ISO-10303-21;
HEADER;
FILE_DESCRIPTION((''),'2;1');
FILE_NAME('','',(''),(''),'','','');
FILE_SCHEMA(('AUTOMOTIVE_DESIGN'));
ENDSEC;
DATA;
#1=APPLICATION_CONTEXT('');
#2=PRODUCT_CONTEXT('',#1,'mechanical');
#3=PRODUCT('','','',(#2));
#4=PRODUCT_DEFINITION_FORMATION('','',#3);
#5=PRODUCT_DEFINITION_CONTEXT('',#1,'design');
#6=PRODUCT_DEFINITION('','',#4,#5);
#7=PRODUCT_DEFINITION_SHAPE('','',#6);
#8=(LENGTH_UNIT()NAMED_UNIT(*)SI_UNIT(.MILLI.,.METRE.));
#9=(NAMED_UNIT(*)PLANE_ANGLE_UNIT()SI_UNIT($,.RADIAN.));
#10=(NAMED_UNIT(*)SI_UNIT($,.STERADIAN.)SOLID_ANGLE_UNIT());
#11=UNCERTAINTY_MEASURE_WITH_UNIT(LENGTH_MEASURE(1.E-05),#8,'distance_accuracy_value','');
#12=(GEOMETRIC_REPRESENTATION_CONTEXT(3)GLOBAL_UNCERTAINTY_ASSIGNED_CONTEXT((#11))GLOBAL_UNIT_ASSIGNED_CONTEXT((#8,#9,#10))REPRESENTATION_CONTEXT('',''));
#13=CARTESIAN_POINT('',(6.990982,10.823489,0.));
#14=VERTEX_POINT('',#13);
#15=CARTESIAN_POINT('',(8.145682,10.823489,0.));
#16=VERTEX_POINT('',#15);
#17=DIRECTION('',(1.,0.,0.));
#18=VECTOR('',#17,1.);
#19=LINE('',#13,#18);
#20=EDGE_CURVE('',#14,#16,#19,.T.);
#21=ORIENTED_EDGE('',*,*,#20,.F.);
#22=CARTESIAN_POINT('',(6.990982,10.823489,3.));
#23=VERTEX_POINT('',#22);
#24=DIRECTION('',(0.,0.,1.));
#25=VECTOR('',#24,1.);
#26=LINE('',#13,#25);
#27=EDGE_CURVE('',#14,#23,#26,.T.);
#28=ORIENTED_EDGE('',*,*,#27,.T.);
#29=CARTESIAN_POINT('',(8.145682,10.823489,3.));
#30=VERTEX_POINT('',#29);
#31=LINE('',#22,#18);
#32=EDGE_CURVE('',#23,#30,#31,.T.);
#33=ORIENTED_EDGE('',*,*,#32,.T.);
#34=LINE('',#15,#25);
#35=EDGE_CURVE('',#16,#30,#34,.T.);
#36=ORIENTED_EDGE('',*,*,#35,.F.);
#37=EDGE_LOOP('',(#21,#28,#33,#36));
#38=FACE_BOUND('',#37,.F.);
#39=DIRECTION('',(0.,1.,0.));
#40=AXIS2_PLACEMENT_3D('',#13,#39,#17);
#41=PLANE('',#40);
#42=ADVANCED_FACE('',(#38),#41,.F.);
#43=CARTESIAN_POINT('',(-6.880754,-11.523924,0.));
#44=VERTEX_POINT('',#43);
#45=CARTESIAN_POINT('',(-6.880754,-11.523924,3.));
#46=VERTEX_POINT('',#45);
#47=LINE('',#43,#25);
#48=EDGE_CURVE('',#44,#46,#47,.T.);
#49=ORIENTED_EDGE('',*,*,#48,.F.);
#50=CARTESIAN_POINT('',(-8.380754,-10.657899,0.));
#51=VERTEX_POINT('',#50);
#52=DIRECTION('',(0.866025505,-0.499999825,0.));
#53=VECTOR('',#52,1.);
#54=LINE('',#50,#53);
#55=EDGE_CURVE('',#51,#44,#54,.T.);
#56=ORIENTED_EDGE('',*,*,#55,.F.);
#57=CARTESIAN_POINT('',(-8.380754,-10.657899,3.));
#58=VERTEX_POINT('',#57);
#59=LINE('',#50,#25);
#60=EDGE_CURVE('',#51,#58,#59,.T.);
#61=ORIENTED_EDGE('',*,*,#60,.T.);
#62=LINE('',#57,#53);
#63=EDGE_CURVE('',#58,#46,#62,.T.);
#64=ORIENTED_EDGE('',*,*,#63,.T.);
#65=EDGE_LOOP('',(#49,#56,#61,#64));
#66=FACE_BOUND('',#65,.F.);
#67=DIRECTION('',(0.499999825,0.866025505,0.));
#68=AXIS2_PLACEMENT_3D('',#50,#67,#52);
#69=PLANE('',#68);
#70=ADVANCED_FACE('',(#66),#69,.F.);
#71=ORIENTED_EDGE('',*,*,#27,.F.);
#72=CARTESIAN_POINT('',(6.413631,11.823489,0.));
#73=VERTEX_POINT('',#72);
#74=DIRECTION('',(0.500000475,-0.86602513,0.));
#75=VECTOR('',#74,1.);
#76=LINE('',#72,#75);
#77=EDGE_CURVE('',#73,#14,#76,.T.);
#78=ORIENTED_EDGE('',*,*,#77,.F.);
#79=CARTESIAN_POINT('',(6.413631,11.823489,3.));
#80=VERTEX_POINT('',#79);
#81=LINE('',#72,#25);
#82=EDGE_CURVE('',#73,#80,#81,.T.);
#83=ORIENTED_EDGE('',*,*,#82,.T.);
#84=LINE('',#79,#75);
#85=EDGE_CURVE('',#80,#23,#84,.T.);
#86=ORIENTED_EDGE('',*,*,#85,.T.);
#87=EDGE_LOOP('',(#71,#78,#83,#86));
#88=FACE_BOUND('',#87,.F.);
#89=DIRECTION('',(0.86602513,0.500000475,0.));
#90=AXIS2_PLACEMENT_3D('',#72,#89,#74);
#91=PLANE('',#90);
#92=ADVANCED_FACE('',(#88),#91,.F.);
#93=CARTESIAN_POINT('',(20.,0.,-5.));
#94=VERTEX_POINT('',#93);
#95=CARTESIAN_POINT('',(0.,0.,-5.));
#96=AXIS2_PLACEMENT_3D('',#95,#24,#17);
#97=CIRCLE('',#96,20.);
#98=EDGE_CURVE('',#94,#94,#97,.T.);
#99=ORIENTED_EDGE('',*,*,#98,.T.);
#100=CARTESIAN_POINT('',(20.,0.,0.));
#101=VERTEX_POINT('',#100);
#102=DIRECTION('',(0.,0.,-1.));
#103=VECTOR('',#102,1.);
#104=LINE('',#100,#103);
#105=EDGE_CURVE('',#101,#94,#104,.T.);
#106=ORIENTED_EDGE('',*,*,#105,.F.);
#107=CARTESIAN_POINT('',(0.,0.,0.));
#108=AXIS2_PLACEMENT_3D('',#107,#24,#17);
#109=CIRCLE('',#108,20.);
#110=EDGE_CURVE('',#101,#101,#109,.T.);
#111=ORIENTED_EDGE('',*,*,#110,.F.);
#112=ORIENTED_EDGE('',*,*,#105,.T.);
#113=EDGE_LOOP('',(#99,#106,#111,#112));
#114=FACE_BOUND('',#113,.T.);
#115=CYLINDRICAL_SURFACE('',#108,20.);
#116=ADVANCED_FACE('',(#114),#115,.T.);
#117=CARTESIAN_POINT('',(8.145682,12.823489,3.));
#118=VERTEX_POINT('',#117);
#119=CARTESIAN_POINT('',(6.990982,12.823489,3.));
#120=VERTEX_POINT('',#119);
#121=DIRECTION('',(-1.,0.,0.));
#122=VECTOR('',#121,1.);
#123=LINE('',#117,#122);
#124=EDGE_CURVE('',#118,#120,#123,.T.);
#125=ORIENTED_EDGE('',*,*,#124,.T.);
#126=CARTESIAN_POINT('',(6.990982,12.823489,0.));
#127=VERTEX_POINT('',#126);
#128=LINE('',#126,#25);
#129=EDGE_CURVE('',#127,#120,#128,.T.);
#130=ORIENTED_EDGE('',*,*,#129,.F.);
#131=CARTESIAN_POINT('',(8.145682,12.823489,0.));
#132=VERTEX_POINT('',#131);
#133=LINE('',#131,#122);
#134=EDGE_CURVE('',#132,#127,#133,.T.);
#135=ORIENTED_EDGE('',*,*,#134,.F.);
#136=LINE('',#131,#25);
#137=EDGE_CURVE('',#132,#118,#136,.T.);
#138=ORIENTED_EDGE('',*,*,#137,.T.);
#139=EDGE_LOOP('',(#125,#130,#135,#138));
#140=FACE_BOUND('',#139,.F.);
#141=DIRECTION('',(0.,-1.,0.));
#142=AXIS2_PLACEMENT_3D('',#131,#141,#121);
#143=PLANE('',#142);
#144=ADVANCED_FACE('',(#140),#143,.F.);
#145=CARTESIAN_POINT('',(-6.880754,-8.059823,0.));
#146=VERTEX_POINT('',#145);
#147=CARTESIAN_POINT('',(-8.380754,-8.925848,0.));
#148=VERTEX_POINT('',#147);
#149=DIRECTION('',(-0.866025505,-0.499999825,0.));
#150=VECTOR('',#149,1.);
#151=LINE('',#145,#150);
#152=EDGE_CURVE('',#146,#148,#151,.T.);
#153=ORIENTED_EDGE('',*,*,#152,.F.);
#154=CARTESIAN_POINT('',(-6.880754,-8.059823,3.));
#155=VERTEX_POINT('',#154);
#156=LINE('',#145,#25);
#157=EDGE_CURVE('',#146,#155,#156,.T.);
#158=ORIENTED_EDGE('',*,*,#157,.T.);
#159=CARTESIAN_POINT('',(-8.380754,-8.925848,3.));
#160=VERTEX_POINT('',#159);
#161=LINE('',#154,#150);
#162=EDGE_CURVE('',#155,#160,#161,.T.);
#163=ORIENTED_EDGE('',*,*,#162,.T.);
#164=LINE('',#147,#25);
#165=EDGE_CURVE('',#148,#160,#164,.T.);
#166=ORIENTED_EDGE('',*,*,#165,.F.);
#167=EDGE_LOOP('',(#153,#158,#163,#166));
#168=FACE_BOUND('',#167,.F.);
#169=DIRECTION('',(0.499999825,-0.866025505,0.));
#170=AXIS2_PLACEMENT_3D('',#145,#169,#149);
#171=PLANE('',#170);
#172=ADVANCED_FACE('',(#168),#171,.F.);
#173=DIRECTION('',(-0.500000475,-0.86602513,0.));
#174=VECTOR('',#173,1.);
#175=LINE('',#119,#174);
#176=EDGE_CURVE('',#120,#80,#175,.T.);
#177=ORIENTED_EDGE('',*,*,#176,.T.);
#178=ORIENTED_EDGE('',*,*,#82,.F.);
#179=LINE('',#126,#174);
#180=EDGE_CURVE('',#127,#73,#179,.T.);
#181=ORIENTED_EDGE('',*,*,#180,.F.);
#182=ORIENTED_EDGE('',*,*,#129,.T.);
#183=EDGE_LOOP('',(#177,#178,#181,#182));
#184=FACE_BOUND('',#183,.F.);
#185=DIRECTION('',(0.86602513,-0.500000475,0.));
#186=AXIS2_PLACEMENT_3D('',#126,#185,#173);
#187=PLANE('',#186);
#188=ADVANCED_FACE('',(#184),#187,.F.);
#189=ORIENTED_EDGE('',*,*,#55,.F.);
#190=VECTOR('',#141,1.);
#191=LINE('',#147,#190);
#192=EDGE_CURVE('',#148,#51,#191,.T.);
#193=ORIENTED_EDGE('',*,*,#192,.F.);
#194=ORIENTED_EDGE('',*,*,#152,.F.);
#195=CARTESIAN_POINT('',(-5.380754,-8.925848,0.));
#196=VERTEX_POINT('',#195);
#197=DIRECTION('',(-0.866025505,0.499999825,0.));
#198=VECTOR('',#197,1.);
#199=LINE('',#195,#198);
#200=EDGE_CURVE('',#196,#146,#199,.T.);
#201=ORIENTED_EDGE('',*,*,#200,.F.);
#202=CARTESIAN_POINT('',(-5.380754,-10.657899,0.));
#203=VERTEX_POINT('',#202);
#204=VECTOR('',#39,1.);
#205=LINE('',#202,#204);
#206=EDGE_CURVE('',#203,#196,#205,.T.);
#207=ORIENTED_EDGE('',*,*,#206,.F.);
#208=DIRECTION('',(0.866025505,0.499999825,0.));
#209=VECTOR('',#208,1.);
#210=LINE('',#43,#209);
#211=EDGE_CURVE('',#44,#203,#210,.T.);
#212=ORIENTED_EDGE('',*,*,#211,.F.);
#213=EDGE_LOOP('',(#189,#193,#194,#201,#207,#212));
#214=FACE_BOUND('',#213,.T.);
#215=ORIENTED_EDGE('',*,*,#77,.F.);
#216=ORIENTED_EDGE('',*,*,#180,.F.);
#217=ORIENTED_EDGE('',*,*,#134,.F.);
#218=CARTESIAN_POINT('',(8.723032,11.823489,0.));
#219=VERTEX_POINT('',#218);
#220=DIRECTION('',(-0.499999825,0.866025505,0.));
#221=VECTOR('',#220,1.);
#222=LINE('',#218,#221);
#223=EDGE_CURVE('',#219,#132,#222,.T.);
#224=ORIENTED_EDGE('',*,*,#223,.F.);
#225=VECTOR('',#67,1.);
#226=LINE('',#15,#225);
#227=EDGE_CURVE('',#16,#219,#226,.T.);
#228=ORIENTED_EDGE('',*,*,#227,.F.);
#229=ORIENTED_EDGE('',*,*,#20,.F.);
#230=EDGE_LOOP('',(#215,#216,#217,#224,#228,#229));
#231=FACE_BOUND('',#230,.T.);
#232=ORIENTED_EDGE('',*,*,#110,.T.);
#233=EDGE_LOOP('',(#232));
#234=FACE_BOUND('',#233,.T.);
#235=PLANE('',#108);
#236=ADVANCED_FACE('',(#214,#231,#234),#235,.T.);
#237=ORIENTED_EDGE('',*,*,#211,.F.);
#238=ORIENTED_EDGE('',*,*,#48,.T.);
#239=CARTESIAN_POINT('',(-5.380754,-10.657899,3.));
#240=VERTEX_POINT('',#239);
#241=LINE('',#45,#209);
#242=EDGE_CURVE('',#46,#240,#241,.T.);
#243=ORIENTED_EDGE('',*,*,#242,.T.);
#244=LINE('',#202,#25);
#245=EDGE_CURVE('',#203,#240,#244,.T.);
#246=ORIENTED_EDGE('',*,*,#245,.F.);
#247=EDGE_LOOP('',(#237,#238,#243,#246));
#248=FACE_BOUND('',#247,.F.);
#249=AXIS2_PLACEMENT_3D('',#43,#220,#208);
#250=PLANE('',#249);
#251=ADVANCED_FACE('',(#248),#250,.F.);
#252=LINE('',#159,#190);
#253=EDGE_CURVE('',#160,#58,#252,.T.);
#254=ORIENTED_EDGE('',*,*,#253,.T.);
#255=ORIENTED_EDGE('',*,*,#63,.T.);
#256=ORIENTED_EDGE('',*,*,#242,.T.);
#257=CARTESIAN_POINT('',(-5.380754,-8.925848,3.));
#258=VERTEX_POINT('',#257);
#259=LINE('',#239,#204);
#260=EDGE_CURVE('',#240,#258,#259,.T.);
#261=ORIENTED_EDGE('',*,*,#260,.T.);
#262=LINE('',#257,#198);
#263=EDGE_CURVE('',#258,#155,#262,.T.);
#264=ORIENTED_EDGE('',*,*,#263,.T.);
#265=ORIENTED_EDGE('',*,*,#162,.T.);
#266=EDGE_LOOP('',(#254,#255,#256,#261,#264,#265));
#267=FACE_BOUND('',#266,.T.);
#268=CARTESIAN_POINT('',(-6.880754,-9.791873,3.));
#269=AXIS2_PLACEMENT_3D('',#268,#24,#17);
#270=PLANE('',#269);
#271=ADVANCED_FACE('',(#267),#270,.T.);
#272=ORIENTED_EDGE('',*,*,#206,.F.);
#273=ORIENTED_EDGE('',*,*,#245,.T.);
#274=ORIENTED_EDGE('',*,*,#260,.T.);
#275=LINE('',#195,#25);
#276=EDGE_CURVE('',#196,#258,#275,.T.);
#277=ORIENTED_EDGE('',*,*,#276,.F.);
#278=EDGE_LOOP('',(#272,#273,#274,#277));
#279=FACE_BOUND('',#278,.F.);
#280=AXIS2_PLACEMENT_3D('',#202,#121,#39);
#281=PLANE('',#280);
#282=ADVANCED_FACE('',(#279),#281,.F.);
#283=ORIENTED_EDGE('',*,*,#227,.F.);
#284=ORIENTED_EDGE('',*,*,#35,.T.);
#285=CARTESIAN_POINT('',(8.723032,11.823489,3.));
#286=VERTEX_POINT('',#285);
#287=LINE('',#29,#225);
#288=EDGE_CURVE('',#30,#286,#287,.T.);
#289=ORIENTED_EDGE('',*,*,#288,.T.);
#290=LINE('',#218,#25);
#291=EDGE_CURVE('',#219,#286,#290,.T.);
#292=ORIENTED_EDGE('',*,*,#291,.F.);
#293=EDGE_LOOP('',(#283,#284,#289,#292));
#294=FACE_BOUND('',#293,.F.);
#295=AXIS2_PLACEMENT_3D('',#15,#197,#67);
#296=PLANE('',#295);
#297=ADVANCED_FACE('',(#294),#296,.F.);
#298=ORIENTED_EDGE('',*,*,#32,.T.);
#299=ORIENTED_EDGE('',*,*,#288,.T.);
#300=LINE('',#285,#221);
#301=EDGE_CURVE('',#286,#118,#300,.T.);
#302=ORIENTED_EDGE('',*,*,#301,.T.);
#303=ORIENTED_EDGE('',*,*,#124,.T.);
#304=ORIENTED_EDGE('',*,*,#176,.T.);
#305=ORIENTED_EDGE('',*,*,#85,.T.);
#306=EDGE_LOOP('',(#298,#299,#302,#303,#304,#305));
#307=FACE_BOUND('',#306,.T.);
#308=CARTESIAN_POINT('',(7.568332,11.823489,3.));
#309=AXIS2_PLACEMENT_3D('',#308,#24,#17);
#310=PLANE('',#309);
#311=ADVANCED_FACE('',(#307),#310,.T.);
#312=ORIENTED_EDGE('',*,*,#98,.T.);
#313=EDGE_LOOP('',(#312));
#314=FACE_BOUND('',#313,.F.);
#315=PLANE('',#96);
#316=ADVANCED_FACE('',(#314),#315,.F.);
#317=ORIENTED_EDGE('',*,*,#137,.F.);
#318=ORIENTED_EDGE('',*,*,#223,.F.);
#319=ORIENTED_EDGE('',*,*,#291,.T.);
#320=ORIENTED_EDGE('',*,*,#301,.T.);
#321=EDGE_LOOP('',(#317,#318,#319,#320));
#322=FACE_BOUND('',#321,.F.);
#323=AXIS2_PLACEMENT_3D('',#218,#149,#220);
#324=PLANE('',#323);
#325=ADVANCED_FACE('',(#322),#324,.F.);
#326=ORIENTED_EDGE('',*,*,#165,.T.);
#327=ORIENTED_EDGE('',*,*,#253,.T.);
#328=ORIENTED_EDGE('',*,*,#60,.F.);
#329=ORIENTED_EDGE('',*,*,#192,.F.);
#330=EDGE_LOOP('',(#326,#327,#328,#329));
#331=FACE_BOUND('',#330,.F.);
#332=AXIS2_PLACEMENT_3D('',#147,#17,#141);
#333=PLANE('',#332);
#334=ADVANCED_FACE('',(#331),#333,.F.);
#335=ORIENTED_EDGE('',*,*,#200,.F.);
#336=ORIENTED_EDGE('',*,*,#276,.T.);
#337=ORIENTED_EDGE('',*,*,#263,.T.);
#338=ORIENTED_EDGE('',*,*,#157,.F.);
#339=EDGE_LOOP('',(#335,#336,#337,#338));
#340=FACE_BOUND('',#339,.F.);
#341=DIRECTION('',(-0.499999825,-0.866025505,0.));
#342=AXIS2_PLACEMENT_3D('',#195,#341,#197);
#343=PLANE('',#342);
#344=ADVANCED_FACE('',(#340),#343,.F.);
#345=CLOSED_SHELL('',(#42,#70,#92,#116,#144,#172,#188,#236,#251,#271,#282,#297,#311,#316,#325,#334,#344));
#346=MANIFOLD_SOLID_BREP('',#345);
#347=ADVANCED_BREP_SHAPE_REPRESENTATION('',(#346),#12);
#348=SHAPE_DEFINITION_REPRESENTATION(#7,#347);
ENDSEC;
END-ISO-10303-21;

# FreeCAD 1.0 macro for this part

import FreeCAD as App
import Part
import Sketcher
Q = App.Units.Quantity


def add_polygon(sketch, points):
    """Adds a closed chain of lines whose ends are joined by coincident constraints."""
    first, n = sketch.GeometryCount, len(points)
    for a, b in zip(points, points[1:] + points[:1]):
        sketch.addGeometry(Part.LineSegment(App.Vector(*a, 0), App.Vector(*b, 0)), False)
    for i in range(n):
        sketch.addConstraint(Sketcher.Constraint("Coincident", first + i, 2, first + (i + 1) % n, 1))

doc = App.newDocument("Part")
params = doc.addObject("Spreadsheet::Sheet", "Params")
for row, (alias, value) in enumerate([
    ("sketch1_diameter", "40 mm"),
    ("pad1_length", "5 mm"),
    ("pad2_length", "3 mm"),
], start=1):
    params.set(f"A{row}", alias)
    params.set(f"B{row}", "=" + value)
    params.setAlias(f"B{row}", alias)

body = doc.addObject("PartDesign::Body", "Body")

sketch1 = body.newObject("Sketcher::SketchObject", "Sketch")
sketch1.AttachmentSupport = (doc.getObject("XY_Plane"), [""])
sketch1.MapMode = "FlatFace"
sketch1.addGeometry(Part.Circle(App.Vector(0, 0, 0), App.Vector(0, 0, 1), 20), False)
sketch1.addConstraint([
    Sketcher.Constraint("Coincident", 0, 3, -1, 1),
    Sketcher.Constraint("Diameter", 0, 40.0),
])
sketch1.setExpression("Constraints[1]", "Params.sketch1_diameter")
pad1 = body.newObject("PartDesign::Pad", "Pad")
pad1.Profile = sketch1
pad1.setExpression("Length", "Params.pad1_length")
pad1.Reversed = True

sketch2 = body.newObject("Sketcher::SketchObject", "Sketch001")
sketch2.AttachmentSupport = (doc.getObject("XY_Plane"), [""])
sketch2.MapMode = "FlatFace"
add_polygon(sketch2, [(-5.4, -8.9), (-6.9, -8.1), (-8.4, -8.9), (-8.4, -10.7), (-6.9, -11.5), (-5.4, -10.7)])
add_polygon(sketch2, [(7, 10.8), (8.1, 10.8), (8.7, 11.8), (8.1, 12.8), (7, 12.8), (6.4, 11.8)])
sketch2.addConstraint([
    Sketcher.Constraint("Vertical", 2),
    Sketcher.Constraint("Vertical", 5),
    Sketcher.Constraint("Horizontal", 6),
    Sketcher.Constraint("Horizontal", 9),
    Sketcher.Constraint("Parallel", 0, 3),
    Sketcher.Constraint("Parallel", 1, 4),
    Sketcher.Constraint("Perpendicular", 3, 7),
    Sketcher.Constraint("Perpendicular", 4, 8),
    Sketcher.Constraint("Parallel", 7, 10),
    Sketcher.Constraint("Parallel", 8, 11),
    Sketcher.Constraint("Horizontal", 2, 2, 4, 2),
    Sketcher.Constraint("Horizontal", 1, 2, 5, 2),
    Sketcher.Constraint("Horizontal", 7, 2, 10, 2),
    Sketcher.Constraint("Vertical", 0, 2, 3, 2),
    Sketcher.Constraint("Vertical", 6, 2, 8, 2),
    Sketcher.Constraint("Angle", 0, Q("150.000012 deg")),
    Sketcher.Constraint("DistanceX", 2, 2, 4, 2, 3.0),
    Sketcher.Constraint("DistanceY", 6, 2, 7, 2, 1.0),
    Sketcher.Constraint("DistanceX", 6, 1, 6, 2, 1.1547),
    Sketcher.Constraint("DistanceY", 2, 2, 2, 1, 1.732051),
    Sketcher.Constraint("DistanceY", 2, 2, -1, 1, 10.657899),
    Sketcher.Constraint("DistanceY", -1, 1, 6, 2, 10.823489),
    Sketcher.Constraint("DistanceX", -1, 1, 9, 2, 6.990982),
    Sketcher.Constraint("DistanceX", 0, 2, -1, 1, 6.880754),
])
pad2 = body.newObject("PartDesign::Pad", "Pad001")
pad2.Profile = sketch2
pad2.setExpression("Length", "Params.pad2_length")

doc.recompute()
